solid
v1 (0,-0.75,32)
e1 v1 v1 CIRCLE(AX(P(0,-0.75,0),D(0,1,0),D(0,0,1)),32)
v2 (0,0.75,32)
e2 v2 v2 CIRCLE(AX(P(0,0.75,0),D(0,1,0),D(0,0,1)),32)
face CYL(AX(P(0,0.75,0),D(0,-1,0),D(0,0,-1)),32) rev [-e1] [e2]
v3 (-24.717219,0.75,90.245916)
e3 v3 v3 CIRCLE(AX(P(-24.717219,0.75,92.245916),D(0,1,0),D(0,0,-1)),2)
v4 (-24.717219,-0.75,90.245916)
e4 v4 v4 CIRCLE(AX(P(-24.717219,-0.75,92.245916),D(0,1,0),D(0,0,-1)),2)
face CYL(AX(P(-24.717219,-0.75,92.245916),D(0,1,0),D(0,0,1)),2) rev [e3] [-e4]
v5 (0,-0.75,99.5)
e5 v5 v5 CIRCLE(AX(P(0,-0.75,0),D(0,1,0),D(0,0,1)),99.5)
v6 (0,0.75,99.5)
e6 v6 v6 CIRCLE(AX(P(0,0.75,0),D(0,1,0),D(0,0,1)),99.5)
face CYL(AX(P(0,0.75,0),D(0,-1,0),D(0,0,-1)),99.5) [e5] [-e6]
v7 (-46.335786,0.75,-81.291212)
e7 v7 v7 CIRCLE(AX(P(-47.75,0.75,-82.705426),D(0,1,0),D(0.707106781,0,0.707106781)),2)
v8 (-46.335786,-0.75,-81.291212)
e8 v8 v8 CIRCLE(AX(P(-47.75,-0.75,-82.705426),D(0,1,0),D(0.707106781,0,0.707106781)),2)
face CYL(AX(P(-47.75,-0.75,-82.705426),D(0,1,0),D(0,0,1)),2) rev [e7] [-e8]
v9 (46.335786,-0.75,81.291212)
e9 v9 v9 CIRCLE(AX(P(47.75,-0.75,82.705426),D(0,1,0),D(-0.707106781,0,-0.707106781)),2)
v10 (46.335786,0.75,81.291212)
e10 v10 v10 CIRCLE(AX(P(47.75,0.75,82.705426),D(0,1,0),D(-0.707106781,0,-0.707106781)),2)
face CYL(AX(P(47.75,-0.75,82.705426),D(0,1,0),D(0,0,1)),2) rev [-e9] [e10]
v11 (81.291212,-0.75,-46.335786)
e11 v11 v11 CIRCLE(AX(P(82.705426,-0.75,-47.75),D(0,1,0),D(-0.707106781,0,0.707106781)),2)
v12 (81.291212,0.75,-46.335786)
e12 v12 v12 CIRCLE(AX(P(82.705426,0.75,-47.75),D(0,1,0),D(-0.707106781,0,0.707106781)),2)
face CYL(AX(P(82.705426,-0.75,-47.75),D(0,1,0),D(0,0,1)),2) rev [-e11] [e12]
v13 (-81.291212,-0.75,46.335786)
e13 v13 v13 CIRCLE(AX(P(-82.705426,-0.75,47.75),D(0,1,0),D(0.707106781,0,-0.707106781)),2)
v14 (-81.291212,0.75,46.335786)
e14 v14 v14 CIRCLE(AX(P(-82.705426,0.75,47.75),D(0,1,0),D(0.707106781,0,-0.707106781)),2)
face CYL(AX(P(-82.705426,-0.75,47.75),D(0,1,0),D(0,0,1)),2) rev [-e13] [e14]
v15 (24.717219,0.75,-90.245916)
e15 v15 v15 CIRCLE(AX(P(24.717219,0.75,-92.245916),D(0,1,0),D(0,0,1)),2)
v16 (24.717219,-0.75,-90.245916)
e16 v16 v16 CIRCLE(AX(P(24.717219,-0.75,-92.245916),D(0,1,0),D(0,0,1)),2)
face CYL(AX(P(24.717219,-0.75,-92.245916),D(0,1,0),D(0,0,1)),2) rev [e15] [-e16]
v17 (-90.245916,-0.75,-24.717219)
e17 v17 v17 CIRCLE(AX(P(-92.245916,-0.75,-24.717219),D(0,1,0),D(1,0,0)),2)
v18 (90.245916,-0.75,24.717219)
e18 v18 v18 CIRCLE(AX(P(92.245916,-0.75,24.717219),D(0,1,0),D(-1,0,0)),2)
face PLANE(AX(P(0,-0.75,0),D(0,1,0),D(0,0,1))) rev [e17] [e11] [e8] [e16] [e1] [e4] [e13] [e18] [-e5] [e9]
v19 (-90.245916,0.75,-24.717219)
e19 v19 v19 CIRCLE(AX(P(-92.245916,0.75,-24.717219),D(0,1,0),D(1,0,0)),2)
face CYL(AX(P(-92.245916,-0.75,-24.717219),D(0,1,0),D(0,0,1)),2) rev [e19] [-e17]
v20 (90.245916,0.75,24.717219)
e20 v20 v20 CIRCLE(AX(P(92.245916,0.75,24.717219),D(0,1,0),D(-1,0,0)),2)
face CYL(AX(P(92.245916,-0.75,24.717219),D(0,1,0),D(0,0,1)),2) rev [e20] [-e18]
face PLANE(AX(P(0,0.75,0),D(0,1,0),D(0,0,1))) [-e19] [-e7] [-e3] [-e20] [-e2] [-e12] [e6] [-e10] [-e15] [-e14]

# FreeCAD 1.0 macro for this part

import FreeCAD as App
import Part
import Sketcher

doc = App.newDocument("Part")
body = doc.addObject("PartDesign::Body", "Body")

# Sketch on XZ plane
sketch1 = doc.addObject("Sketcher::SketchObject", "Sketch")
body.addObject(sketch1)
sketch1.AttachmentSupport = (doc.XZ_Plane, [""])
sketch1.MapMode = "FlatFace"
sketch1.addGeometry([
    Part.Circle(App.Vector(0, 0, 0), App.Vector(0, 0, 1), 100),
    Part.Circle(App.Vector(0, 0, 0), App.Vector(0, 0, 1), 32),
], False)
sketch1.addConstraint([
    Sketcher.Constraint("Coincident", 0, 3, -1, 1),
    Sketcher.Constraint("Coincident", 1, 3, -1, 1),
    Sketcher.Constraint("Diameter", 0, 199.0),
    Sketcher.Constraint("Diameter", 1, 64.0),
])
pad1 = doc.addObject("PartDesign::Pad", "Pad")
body.addObject(pad1)
pad1.Profile = sketch1
pad1.Length = 1.5
pad1.Midplane = True

# Sketch on XZ plane
sketch2 = doc.addObject("Sketcher::SketchObject", "Sketch001")
body.addObject(sketch2)
sketch2.AttachmentSupport = (doc.XZ_Plane, [""])
sketch2.MapMode = "FlatFace"
sketch2.AttachmentOffset = App.Placement(App.Vector(0, 0, -0.75), App.Rotation())
sketch2.addGeometry(Part.Circle(App.Vector(24.7, -92.2, 0), App.Vector(0, 0, 1), 2), False)
sketch2.addConstraint([
    Sketcher.Constraint("Diameter", 0, 4.0),
    Sketcher.Constraint("DistanceX", -1, 1, 0, 3, 24.717219),
    Sketcher.Constraint("DistanceY", 0, 3, -1, 1, 92.245916),
])
pocket1 = doc.addObject("PartDesign::Pocket", "Pocket")
body.addObject(pocket1)
pocket1.Profile = sketch2
pocket1.Type = "ThroughAll"
pocket1.Reversed = True
doc.recompute()

polarpattern = doc.addObject("PartDesign::PolarPattern", "PolarPattern")
body.addObject(polarpattern)
polarpattern.Originals = [pocket1]
polarpattern.Axis = (doc.Y_Axis, [""])
polarpattern.Angle = 360
polarpattern.Occurrences = 8
body.Tip = polarpattern

doc.recompute()
